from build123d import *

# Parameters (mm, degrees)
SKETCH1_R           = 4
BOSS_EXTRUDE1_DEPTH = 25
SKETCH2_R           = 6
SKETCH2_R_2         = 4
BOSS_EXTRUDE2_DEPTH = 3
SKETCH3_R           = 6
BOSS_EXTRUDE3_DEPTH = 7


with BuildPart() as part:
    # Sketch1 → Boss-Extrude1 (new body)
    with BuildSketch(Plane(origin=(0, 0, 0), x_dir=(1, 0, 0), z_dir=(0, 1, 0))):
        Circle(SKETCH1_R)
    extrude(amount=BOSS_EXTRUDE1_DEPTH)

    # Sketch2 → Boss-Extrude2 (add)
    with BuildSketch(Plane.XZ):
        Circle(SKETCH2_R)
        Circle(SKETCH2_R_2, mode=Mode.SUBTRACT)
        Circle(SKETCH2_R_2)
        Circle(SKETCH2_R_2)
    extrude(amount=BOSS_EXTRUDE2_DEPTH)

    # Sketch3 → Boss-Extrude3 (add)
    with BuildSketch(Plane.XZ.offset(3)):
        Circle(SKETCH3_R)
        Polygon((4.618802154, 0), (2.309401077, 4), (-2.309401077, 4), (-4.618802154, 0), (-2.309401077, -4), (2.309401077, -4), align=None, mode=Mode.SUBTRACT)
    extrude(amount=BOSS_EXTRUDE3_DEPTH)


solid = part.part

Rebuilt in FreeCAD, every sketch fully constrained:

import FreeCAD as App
import Part
import Sketcher
Q = App.Units.Quantity


def add_polygon(sketch, points):
    """Adds a closed chain of lines whose ends are joined by coincident constraints."""
    first, n = sketch.GeometryCount, len(points)
    for a, b in zip(points, points[1:] + points[:1]):
        sketch.addGeometry(Part.LineSegment(App.Vector(*a, 0), App.Vector(*b, 0)), False)
    for i in range(n):
        sketch.addConstraint(Sketcher.Constraint("Coincident", first + i, 2, first + (i + 1) % n, 1))

doc = App.newDocument("Part")
body = doc.addObject("PartDesign::Body", "Body")

# Sketch on XZ plane
sketch1 = doc.addObject("Sketcher::SketchObject", "Sketch")
body.addObject(sketch1)
sketch1.AttachmentSupport = (doc.XZ_Plane, [""])
sketch1.MapMode = "FlatFace"
sketch1.addGeometry(Part.Circle(App.Vector(0, 0, 0), App.Vector(0, 0, 1), 4), False)
sketch1.addConstraint(Sketcher.Constraint("Coincident", 0, 3, -1, 1))
sketch1.addConstraint(Sketcher.Constraint("Diameter", 0, Q("8 mm")))
pad1 = doc.addObject("PartDesign::Pad", "Pad")
body.addObject(pad1)
pad1.Profile = sketch1
pad1.Length = 25
pad1.Reversed = True

# Sketch on XZ plane
sketch2 = doc.addObject("Sketcher::SketchObject", "Sketch001")
body.addObject(sketch2)
sketch2.AttachmentSupport = (doc.XZ_Plane, [""])
sketch2.MapMode = "FlatFace"
sketch2.addGeometry(Part.Circle(App.Vector(0, 0, 0), App.Vector(0, 0, 1), 6), False)
sketch2.addConstraint(Sketcher.Constraint("Coincident", 0, 3, -1, 1))
sketch2.addConstraint(Sketcher.Constraint("Diameter", 0, Q("12 mm")))
pad2 = doc.addObject("PartDesign::Pad", "Pad001")
body.addObject(pad2)
pad2.Profile = sketch2
pad2.Length = 3

# Sketch on XZ plane
sketch3 = doc.addObject("Sketcher::SketchObject", "Sketch002")
body.addObject(sketch3)
sketch3.AttachmentSupport = (doc.XZ_Plane, [""])
sketch3.MapMode = "FlatFace"
sketch3.AttachmentOffset = App.Placement(App.Vector(0, 0, 3), App.Rotation())
sketch3.addGeometry(Part.Circle(App.Vector(0, 0, 0), App.Vector(0, 0, 1), 6), False)  # 0
add_polygon(sketch3, [(2.3, 4), (4.6, 0), (2.3, -4), (-2.3, -4), (-4.6, 0), (-2.3, 4)])  # lines 1-6
sketch3.addConstraint(Sketcher.Constraint("Horizontal", 3))
sketch3.addConstraint(Sketcher.Constraint("Horizontal", 6))
sketch3.addConstraint(Sketcher.Constraint("Coincident", 0, 3, -1, 1))
sketch3.addConstraint(Sketcher.Constraint("Symmetric", 1, 2, 4, 2, -1, 1))
sketch3.addConstraint(Sketcher.Constraint("Symmetric", 2, 2, 5, 2, -1, 1))
sketch3.addConstraint(Sketcher.Constraint("PointOnObject", 1, 2, -1))
sketch3.addConstraint(Sketcher.Constraint("Parallel", 1, 4))
sketch3.addConstraint(Sketcher.Constraint("Vertical", 3, 2, 5, 2))
sketch3.addConstraint(Sketcher.Constraint("Diameter", 0, Q("12 mm")))
sketch3.addConstraint(Sketcher.Constraint("Angle", 1, Q("-60 deg")))
sketch3.addConstraint(Sketcher.Constraint("DistanceY", 2, 2, -1, 1, Q("4 mm")))
sketch3.addConstraint(Sketcher.Constraint("DistanceX", -1, 1, 2, 2, Q("2.309401 mm")))
pad3 = doc.addObject("PartDesign::Pad", "Pad002")
body.addObject(pad3)
pad3.Profile = sketch3
pad3.Length = 7

doc.recompute()
